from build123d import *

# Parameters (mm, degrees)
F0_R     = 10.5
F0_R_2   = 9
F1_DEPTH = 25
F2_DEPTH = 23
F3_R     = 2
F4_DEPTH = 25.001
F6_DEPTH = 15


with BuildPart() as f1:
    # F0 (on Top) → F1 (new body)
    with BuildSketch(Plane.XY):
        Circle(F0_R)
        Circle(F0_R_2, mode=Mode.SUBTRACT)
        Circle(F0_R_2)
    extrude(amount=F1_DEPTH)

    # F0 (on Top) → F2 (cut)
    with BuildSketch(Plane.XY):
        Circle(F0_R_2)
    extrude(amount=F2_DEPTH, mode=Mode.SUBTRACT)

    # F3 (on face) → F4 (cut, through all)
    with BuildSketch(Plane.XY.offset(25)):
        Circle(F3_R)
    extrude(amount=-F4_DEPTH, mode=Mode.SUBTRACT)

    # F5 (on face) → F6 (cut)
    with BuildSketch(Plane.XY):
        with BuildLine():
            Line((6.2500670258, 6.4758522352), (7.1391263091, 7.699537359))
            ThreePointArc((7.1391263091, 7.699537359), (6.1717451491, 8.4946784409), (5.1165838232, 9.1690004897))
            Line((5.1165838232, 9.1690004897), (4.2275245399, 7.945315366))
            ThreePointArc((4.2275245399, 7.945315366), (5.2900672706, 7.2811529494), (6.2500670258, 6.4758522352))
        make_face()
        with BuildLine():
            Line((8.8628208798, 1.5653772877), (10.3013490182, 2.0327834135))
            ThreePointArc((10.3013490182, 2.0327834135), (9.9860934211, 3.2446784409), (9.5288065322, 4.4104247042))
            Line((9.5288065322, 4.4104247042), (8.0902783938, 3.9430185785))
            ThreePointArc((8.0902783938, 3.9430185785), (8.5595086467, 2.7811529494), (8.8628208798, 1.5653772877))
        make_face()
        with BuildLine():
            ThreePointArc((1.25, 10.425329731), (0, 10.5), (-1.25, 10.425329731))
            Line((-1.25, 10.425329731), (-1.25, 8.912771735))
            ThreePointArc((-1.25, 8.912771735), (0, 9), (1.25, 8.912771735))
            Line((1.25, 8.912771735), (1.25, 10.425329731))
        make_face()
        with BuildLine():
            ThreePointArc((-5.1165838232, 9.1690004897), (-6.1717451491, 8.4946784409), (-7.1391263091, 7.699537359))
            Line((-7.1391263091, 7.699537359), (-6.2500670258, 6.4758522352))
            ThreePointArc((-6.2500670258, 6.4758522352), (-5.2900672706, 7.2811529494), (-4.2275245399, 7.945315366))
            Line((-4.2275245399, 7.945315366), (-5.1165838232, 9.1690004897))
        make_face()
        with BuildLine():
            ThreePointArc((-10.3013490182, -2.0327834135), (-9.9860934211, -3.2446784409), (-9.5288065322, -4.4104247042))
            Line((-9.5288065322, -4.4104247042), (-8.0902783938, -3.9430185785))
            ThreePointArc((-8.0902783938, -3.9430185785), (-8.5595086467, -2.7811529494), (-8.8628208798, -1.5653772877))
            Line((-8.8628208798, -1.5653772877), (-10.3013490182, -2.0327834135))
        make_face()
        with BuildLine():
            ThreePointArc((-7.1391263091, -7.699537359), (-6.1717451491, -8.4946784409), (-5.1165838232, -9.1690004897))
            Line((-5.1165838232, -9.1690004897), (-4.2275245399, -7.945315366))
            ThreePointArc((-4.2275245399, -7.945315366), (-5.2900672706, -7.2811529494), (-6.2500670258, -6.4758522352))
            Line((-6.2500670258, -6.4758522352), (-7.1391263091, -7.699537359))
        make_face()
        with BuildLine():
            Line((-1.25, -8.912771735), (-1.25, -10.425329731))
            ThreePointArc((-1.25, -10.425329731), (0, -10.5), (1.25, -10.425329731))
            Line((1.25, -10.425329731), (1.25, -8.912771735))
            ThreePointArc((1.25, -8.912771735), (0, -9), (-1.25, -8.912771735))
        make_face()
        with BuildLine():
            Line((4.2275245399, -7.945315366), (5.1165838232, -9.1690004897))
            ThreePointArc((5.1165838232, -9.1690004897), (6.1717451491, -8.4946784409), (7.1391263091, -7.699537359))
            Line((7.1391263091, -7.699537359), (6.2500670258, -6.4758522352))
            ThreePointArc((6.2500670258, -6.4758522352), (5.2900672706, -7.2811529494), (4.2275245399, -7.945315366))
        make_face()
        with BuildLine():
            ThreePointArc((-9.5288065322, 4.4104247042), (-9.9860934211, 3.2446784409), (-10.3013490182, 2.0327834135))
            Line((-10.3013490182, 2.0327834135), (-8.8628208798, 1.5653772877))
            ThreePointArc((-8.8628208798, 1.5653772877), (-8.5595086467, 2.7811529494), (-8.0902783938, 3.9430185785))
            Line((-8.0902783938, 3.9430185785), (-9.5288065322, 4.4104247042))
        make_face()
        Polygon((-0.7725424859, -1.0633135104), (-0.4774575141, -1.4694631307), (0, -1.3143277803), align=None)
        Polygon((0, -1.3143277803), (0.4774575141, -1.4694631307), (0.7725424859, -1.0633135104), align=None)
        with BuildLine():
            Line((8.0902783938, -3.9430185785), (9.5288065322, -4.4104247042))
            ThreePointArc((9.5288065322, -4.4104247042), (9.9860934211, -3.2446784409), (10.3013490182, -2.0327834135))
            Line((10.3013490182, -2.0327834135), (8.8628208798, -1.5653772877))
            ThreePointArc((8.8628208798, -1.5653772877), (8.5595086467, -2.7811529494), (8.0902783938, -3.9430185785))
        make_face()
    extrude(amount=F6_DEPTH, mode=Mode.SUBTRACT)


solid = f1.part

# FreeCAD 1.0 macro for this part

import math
import FreeCAD as App
import Part
import Sketcher

V = App.Vector
Q = App.Units.Quantity


def add_polygon(sketch, points):
    """Adds a closed chain of lines whose ends are joined by coincident constraints."""
    first, n = sketch.GeometryCount, len(points)
    for a, b in zip(points, points[1:] + points[:1]):
        sketch.addGeometry(Part.LineSegment(App.Vector(*a, 0), App.Vector(*b, 0)), False)
    for i in range(n):
        sketch.addConstraint(Sketcher.Constraint("Coincident", first + i, 2, first + (i + 1) % n, 1))

doc = App.newDocument("Part")
body = doc.addObject("PartDesign::Body", "Body")

sketch1 = doc.addObject("Sketcher::SketchObject", "Sketch")
body.addObject(sketch1)
sketch1.AttachmentSupport = (doc.XY_Plane, [""])
sketch1.MapMode = "FlatFace"
sketch1.addGeometry(Part.Circle(V(0, 0, 0), V(0, 0, 1), 10), False)
sketch1.addConstraint([
    Sketcher.Constraint("Coincident", 0, 3, -1, 1),
    Sketcher.Constraint("Diameter", 0, Q("21 mm")),
])
pad1 = doc.addObject("PartDesign::Pad", "Pad")
body.addObject(pad1)
pad1.Profile = sketch1
pad1.Length = 25

sketch2 = doc.addObject("Sketcher::SketchObject", "Sketch001")
body.addObject(sketch2)
sketch2.AttachmentSupport = (doc.XY_Plane, [""])
sketch2.MapMode = "FlatFace"
sketch2.addGeometry(Part.Circle(V(0, 0, 0), V(0, 0, 1), 9), False)
sketch2.addConstraint([
    Sketcher.Constraint("Coincident", 0, 3, -1, 1),
    Sketcher.Constraint("Diameter", 0, Q("18 mm")),
])
pocket1 = doc.addObject("PartDesign::Pocket", "Pocket")
body.addObject(pocket1)
pocket1.Profile = sketch2
pocket1.Length = 23
pocket1.Reversed = True

sketch3 = doc.addObject("Sketcher::SketchObject", "Sketch002")
body.addObject(sketch3)
sketch3.AttachmentSupport = (doc.XY_Plane, [""])
sketch3.MapMode = "FlatFace"
sketch3.AttachmentOffset = App.Placement(V(0, 0, 25), App.Rotation())
sketch3.addGeometry(Part.Circle(V(0, 0, 0), V(0, 0, 1), 2), False)
sketch3.addConstraint([
    Sketcher.Constraint("Coincident", 0, 3, -1, 1),
    Sketcher.Constraint("Diameter", 0, Q("4 mm")),
])
pocket2 = doc.addObject("PartDesign::Pocket", "Pocket001")
body.addObject(pocket2)
pocket2.Profile = sketch3
pocket2.Type = "ThroughAll"

sketch4 = doc.addObject("Sketcher::SketchObject", "Sketch003")
body.addObject(sketch4)
sketch4.AttachmentSupport = (doc.XY_Plane, [""])
sketch4.MapMode = "FlatFace"
sketch4.addGeometry(Part.LineSegment(V(6.3, 6.5, 0), V(7.1, 7.7, 0)), False)
sketch4.addGeometry(Part.ArcOfCircle(Part.Circle(V(0, 0, 0), V(0, 0, 1), 10.5), math.radians(47.16), math.radians(60.84)), False)
sketch4.addGeometry(Part.LineSegment(V(5.1, 9.2, 0), V(4.2, 7.9, 0)), False)
sketch4.addGeometry(Part.ArcOfCircle(Part.Circle(V(0, 0, 0), V(0, 0, 1), 9), math.radians(46.02), math.radians(61.98)), False)
sketch4.addGeometry(Part.LineSegment(V(8.9, 1.6, 0), V(10.3, 2, 0)), False)
sketch4.addGeometry(Part.ArcOfCircle(Part.Circle(V(0, 0, 0), V(0, 0, 1), 10.5), math.radians(11.16), math.radians(24.84)), False)
sketch4.addGeometry(Part.LineSegment(V(9.5, 4.4, 0), V(8.1, 3.9, 0)), False)
sketch4.addGeometry(Part.ArcOfCircle(Part.Circle(V(0, 0, 0), V(0, 0, 1), 9), math.radians(10.02), math.radians(25.98)), False)
sketch4.addGeometry(Part.ArcOfCircle(Part.Circle(V(0, 0, 0), V(0, 0, 1), 10.5), math.radians(83.16), math.radians(96.84)), False)
sketch4.addGeometry(Part.LineSegment(V(-1.2, 10.4, 0), V(-1.2, 8.9, 0)), False)
sketch4.addGeometry(Part.ArcOfCircle(Part.Circle(V(0, 0, 0), V(0, 0, 1), 9), math.radians(82.02), math.radians(97.98)), False)
sketch4.addGeometry(Part.LineSegment(V(1.2, 8.9, 0), V(1.2, 10.4, 0)), False)
sketch4.addGeometry(Part.ArcOfCircle(Part.Circle(V(0, 0, 0), V(0, 0, 1), 10.5), math.radians(119.16), math.radians(132.84)), False)
sketch4.addGeometry(Part.LineSegment(V(-7.1, 7.7, 0), V(-6.3, 6.5, 0)), False)
sketch4.addGeometry(Part.ArcOfCircle(Part.Circle(V(0, 0, 0), V(0, 0, 1), 9), math.radians(118.02), math.radians(133.98)), False)
sketch4.addGeometry(Part.LineSegment(V(-4.2, 7.9, 0), V(-5.1, 9.2, 0)), False)
sketch4.addGeometry(Part.ArcOfCircle(Part.Circle(V(0, 0, 0), V(0, 0, 1), 10.5), math.radians(-168.84), math.radians(-155.16)), False)
sketch4.addGeometry(Part.LineSegment(V(-9.5, -4.4, 0), V(-8.1, -3.9, 0)), False)
sketch4.addGeometry(Part.ArcOfCircle(Part.Circle(V(0, 0, 0), V(0, 0, 1), 9), math.radians(-169.98), math.radians(-154.02)), False)
sketch4.addGeometry(Part.LineSegment(V(-8.9, -1.6, 0), V(-10.3, -2, 0)), False)
sketch4.addGeometry(Part.ArcOfCircle(Part.Circle(V(0, 0, 0), V(0, 0, 1), 10.5), math.radians(-132.84), math.radians(-119.16)), False)
sketch4.addGeometry(Part.LineSegment(V(-5.1, -9.2, 0), V(-4.2, -7.9, 0)), False)
sketch4.addGeometry(Part.ArcOfCircle(Part.Circle(V(0, 0, 0), V(0, 0, 1), 9), math.radians(-133.98), math.radians(-118.02)), False)
sketch4.addGeometry(Part.LineSegment(V(-6.3, -6.5, 0), V(-7.1, -7.7, 0)), False)
sketch4.addGeometry(Part.LineSegment(V(-1.2, -8.9, 0), V(-1.2, -10.4, 0)), False)
sketch4.addGeometry(Part.ArcOfCircle(Part.Circle(V(0, 0, 0), V(0, 0, 1), 10.5), math.radians(-96.84), math.radians(-83.16)), False)
sketch4.addGeometry(Part.LineSegment(V(1.2, -10.4, 0), V(1.2, -8.9, 0)), False)
sketch4.addGeometry(Part.ArcOfCircle(Part.Circle(V(0, 0, 0), V(0, 0, 1), 9), math.radians(-97.98), math.radians(-82.02)), False)
sketch4.addGeometry(Part.LineSegment(V(4.2, -7.9, 0), V(5.1, -9.2, 0)), False)
sketch4.addGeometry(Part.ArcOfCircle(Part.Circle(V(0, 0, 0), V(0, 0, 1), 10.5), math.radians(-60.84), math.radians(-47.16)), False)
sketch4.addGeometry(Part.LineSegment(V(7.1, -7.7, 0), V(6.3, -6.5, 0)), False)
sketch4.addGeometry(Part.ArcOfCircle(Part.Circle(V(0, 0, 0), V(0, 0, 1), 9), math.radians(-61.98), math.radians(-46.02)), False)
sketch4.addGeometry(Part.ArcOfCircle(Part.Circle(V(0, 0, 0), V(0, 0, 1), 10.5), math.radians(155.16), math.radians(168.84)), False)
sketch4.addGeometry(Part.LineSegment(V(-10.3, 2, 0), V(-8.9, 1.6, 0)), False)
sketch4.addGeometry(Part.ArcOfCircle(Part.Circle(V(0, 0, 0), V(0, 0, 1), 9), math.radians(154.02), math.radians(169.98)), False)
sketch4.addGeometry(Part.LineSegment(V(-8.1, 3.9, 0), V(-9.5, 4.4, 0)), False)
add_polygon(sketch4, [(-0.8, -1.1), (-0.5, -1.5), (0, -1.3)])
add_polygon(sketch4, [(0, -1.3), (0.5, -1.5), (0.8, -1.1)])
sketch4.addGeometry(Part.LineSegment(V(8.1, -3.9, 0), V(9.5, -4.4, 0)), False)
sketch4.addGeometry(Part.ArcOfCircle(Part.Circle(V(0, 0, 0), V(0, 0, 1), 10.5), math.radians(-24.84), math.radians(-11.16)), False)
sketch4.addGeometry(Part.LineSegment(V(10.3, -2, 0), V(8.9, -1.6, 0)), False)
sketch4.addGeometry(Part.ArcOfCircle(Part.Circle(V(0, 0, 0), V(0, 0, 1), 9), math.radians(-25.98), math.radians(-10.02)), False)
sketch4.addConstraint([
    Sketcher.Constraint("Coincident", 0, 2, 1, 1),
    Sketcher.Constraint("Coincident", 1, 2, 2, 1),
    Sketcher.Constraint("Coincident", 2, 2, 3, 2),
    Sketcher.Constraint("Coincident", 3, 1, 0, 1),
    Sketcher.Constraint("Coincident", 4, 2, 5, 1),
    Sketcher.Constraint("Coincident", 5, 2, 6, 1),
    Sketcher.Constraint("Coincident", 6, 2, 7, 2),
    Sketcher.Constraint("Coincident", 7, 1, 4, 1),
    Sketcher.Constraint("Coincident", 8, 2, 9, 1),
    Sketcher.Constraint("Coincident", 9, 2, 10, 2),
    Sketcher.Constraint("Coincident", 10, 1, 11, 1),
    Sketcher.Constraint("Coincident", 11, 2, 8, 1),
    Sketcher.Constraint("Coincident", 12, 2, 13, 1),
    Sketcher.Constraint("Coincident", 13, 2, 14, 2),
    Sketcher.Constraint("Coincident", 14, 1, 15, 1),
    Sketcher.Constraint("Coincident", 15, 2, 12, 1),
    Sketcher.Constraint("Coincident", 16, 2, 17, 1),
    Sketcher.Constraint("Coincident", 17, 2, 18, 2),
    Sketcher.Constraint("Coincident", 18, 1, 19, 1),
    Sketcher.Constraint("Coincident", 19, 2, 16, 1),
    Sketcher.Constraint("Coincident", 20, 2, 21, 1),
    Sketcher.Constraint("Coincident", 21, 2, 22, 2),
    Sketcher.Constraint("Coincident", 22, 1, 23, 1),
    Sketcher.Constraint("Coincident", 23, 2, 20, 1),
    Sketcher.Constraint("Coincident", 24, 2, 25, 1),
    Sketcher.Constraint("Coincident", 25, 2, 26, 1),
    Sketcher.Constraint("Coincident", 26, 2, 27, 2),
    Sketcher.Constraint("Coincident", 27, 1, 24, 1),
    Sketcher.Constraint("Coincident", 28, 2, 29, 1),
    Sketcher.Constraint("Coincident", 29, 2, 30, 1),
    Sketcher.Constraint("Coincident", 30, 2, 31, 2),
    Sketcher.Constraint("Coincident", 31, 1, 28, 1),
    Sketcher.Constraint("Coincident", 32, 2, 33, 1),
    Sketcher.Constraint("Coincident", 33, 2, 34, 2),
    Sketcher.Constraint("Coincident", 34, 1, 35, 1),
    Sketcher.Constraint("Coincident", 35, 2, 32, 1),
    Sketcher.Constraint("Coincident", 42, 2, 43, 1),
    Sketcher.Constraint("Coincident", 43, 2, 44, 1),
    Sketcher.Constraint("Coincident", 44, 2, 45, 2),
    Sketcher.Constraint("Coincident", 45, 1, 42, 1),
    Sketcher.Constraint("Vertical", 9),
    Sketcher.Constraint("Vertical", 11),
    Sketcher.Constraint("Vertical", 24),
    Sketcher.Constraint("Vertical", 26),
    Sketcher.Constraint("Coincident", 1, 3, -1, 1),
    Sketcher.Constraint("Coincident", 3, 3, -1, 1),
    Sketcher.Constraint("Coincident", 5, 3, -1, 1),
    Sketcher.Constraint("Coincident", 7, 3, -1, 1),
    Sketcher.Constraint("Coincident", 8, 3, -1, 1),
    Sketcher.Constraint("Coincident", 10, 3, -1, 1),
    Sketcher.Constraint("Coincident", 12, 3, -1, 1),
    Sketcher.Constraint("Coincident", 14, 3, -1, 1),
    Sketcher.Constraint("Coincident", 16, 3, -1, 1),
    Sketcher.Constraint("Coincident", 18, 3, -1, 1),
    Sketcher.Constraint("Coincident", 20, 3, -1, 1),
    Sketcher.Constraint("Coincident", 22, 3, -1, 1),
    Sketcher.Constraint("Coincident", 25, 3, -1, 1),
    Sketcher.Constraint("Coincident", 27, 3, -1, 1),
    Sketcher.Constraint("Coincident", 29, 3, -1, 1),
    Sketcher.Constraint("Coincident", 31, 3, -1, 1),
    Sketcher.Constraint("Coincident", 32, 3, -1, 1),
    Sketcher.Constraint("Coincident", 34, 3, -1, 1),
    Sketcher.Constraint("Coincident", 43, 3, -1, 1),
    Sketcher.Constraint("Coincident", 45, 3, -1, 1),
    Sketcher.Constraint("Coincident", 41, 2, 37, 2),
    Sketcher.Constraint("Equal", 1, 5),
    Sketcher.Constraint("Equal", 3, 7),
    Sketcher.Constraint("Equal", 5, 8),
    Sketcher.Constraint("Equal", 7, 10),
    Sketcher.Constraint("Equal", 8, 12),
    Sketcher.Constraint("Equal", 10, 14),
    Sketcher.Constraint("Equal", 12, 16),
    Sketcher.Constraint("Equal", 14, 18),
    Sketcher.Constraint("Equal", 16, 20),
    Sketcher.Constraint("Equal", 18, 22),
    Sketcher.Constraint("Equal", 20, 25),
    Sketcher.Constraint("Equal", 22, 27),
    Sketcher.Constraint("Equal", 25, 29),
    Sketcher.Constraint("Equal", 27, 31),
    Sketcher.Constraint("Equal", 29, 32),
    Sketcher.Constraint("Equal", 31, 34),
    Sketcher.Constraint("Equal", 32, 43),
    Sketcher.Constraint("Equal", 34, 45),
    Sketcher.Constraint("Symmetric", 36, 2, 39, 2, -2),
    Sketcher.Constraint("Symmetric", 38, 2, 40, 2, -2),
    Sketcher.Constraint("PointOnObject", 37, 2, -2),
    Sketcher.Constraint("Parallel", 0, 2),
    Sketcher.Constraint("Parallel", 4, 6),
    Sketcher.Constraint("Parallel", 13, 15),
    Sketcher.Constraint("Parallel", 6, 17),
    Sketcher.Constraint("Parallel", 17, 19),
    Sketcher.Constraint("Parallel", 2, 21),
    Sketcher.Constraint("Parallel", 21, 23),
    Sketcher.Constraint("Parallel", 15, 28),
    Sketcher.Constraint("Parallel", 28, 30),
    Sketcher.Constraint("Parallel", 33, 35),
    Sketcher.Constraint("Parallel", 30, 36),
    Sketcher.Constraint("Parallel", 19, 37),
    Sketcher.Constraint("Parallel", 35, 38),
    Sketcher.Constraint("Parallel", 38, 39),
    Sketcher.Constraint("Parallel", 23, 40),
    Sketcher.Constraint("Parallel", 39, 42),
    Sketcher.Constraint("Parallel", 42, 44),
    Sketcher.Constraint("Horizontal", 9, 2, 10, 1),
    Sketcher.Constraint("Horizontal", 0, 2, 12, 2),
    Sketcher.Constraint("Horizontal", 2, 2, 14, 1),
    Sketcher.Constraint("Horizontal", 24, 2, 25, 2),
    Sketcher.Constraint("Horizontal", 20, 2, 28, 2),
    Sketcher.Constraint("Horizontal", 23, 2, 29, 2),
    Sketcher.Constraint("Horizontal", 4, 2, 32, 2),
    Sketcher.Constraint("Horizontal", 6, 2, 34, 1),
    Sketcher.Constraint("Horizontal", 16, 2, 42, 2),
    Sketcher.Constraint("Horizontal", 19, 2, 43, 2),
    Sketcher.Constraint("Vertical", 15, 2, 20, 2),
    Sketcher.Constraint("Vertical", 13, 2, 22, 1),
    Sketcher.Constraint("Vertical", 9, 2, 24, 2),
    Sketcher.Constraint("Vertical", 19, 2, 32, 2),
    Sketcher.Constraint("Vertical", 17, 2, 34, 1),
    Sketcher.Constraint("Equal", 0, 2),
    Sketcher.Constraint("Equal", 2, 4),
    Sketcher.Constraint("Equal", 4, 6),
    Sketcher.Constraint("Equal", 36, 37),
    Sketcher.Constraint("Radius", 3, Q("9 mm")),
    Sketcher.Constraint("Radius", 1, Q("10.5 mm")),
    Sketcher.Constraint("Angle", 0, Q("54 deg")),
    Sketcher.Constraint("DistanceX", 8, 2, -1, 1, Q("1.25 mm")),
    Sketcher.Constraint("DistanceY", -1, 1, 1, 2, Q("9.169 mm")),
    Sketcher.Constraint("Distance", 38, Q("0.812299 mm")),
    Sketcher.Constraint("DistanceY", 36, 2, -1, 1, Q("1.469463 mm")),
])
pocket3 = doc.addObject("PartDesign::Pocket", "Pocket002")
body.addObject(pocket3)
pocket3.Profile = sketch4
pocket3.Length = 15
pocket3.Reversed = True

doc.recompute()
